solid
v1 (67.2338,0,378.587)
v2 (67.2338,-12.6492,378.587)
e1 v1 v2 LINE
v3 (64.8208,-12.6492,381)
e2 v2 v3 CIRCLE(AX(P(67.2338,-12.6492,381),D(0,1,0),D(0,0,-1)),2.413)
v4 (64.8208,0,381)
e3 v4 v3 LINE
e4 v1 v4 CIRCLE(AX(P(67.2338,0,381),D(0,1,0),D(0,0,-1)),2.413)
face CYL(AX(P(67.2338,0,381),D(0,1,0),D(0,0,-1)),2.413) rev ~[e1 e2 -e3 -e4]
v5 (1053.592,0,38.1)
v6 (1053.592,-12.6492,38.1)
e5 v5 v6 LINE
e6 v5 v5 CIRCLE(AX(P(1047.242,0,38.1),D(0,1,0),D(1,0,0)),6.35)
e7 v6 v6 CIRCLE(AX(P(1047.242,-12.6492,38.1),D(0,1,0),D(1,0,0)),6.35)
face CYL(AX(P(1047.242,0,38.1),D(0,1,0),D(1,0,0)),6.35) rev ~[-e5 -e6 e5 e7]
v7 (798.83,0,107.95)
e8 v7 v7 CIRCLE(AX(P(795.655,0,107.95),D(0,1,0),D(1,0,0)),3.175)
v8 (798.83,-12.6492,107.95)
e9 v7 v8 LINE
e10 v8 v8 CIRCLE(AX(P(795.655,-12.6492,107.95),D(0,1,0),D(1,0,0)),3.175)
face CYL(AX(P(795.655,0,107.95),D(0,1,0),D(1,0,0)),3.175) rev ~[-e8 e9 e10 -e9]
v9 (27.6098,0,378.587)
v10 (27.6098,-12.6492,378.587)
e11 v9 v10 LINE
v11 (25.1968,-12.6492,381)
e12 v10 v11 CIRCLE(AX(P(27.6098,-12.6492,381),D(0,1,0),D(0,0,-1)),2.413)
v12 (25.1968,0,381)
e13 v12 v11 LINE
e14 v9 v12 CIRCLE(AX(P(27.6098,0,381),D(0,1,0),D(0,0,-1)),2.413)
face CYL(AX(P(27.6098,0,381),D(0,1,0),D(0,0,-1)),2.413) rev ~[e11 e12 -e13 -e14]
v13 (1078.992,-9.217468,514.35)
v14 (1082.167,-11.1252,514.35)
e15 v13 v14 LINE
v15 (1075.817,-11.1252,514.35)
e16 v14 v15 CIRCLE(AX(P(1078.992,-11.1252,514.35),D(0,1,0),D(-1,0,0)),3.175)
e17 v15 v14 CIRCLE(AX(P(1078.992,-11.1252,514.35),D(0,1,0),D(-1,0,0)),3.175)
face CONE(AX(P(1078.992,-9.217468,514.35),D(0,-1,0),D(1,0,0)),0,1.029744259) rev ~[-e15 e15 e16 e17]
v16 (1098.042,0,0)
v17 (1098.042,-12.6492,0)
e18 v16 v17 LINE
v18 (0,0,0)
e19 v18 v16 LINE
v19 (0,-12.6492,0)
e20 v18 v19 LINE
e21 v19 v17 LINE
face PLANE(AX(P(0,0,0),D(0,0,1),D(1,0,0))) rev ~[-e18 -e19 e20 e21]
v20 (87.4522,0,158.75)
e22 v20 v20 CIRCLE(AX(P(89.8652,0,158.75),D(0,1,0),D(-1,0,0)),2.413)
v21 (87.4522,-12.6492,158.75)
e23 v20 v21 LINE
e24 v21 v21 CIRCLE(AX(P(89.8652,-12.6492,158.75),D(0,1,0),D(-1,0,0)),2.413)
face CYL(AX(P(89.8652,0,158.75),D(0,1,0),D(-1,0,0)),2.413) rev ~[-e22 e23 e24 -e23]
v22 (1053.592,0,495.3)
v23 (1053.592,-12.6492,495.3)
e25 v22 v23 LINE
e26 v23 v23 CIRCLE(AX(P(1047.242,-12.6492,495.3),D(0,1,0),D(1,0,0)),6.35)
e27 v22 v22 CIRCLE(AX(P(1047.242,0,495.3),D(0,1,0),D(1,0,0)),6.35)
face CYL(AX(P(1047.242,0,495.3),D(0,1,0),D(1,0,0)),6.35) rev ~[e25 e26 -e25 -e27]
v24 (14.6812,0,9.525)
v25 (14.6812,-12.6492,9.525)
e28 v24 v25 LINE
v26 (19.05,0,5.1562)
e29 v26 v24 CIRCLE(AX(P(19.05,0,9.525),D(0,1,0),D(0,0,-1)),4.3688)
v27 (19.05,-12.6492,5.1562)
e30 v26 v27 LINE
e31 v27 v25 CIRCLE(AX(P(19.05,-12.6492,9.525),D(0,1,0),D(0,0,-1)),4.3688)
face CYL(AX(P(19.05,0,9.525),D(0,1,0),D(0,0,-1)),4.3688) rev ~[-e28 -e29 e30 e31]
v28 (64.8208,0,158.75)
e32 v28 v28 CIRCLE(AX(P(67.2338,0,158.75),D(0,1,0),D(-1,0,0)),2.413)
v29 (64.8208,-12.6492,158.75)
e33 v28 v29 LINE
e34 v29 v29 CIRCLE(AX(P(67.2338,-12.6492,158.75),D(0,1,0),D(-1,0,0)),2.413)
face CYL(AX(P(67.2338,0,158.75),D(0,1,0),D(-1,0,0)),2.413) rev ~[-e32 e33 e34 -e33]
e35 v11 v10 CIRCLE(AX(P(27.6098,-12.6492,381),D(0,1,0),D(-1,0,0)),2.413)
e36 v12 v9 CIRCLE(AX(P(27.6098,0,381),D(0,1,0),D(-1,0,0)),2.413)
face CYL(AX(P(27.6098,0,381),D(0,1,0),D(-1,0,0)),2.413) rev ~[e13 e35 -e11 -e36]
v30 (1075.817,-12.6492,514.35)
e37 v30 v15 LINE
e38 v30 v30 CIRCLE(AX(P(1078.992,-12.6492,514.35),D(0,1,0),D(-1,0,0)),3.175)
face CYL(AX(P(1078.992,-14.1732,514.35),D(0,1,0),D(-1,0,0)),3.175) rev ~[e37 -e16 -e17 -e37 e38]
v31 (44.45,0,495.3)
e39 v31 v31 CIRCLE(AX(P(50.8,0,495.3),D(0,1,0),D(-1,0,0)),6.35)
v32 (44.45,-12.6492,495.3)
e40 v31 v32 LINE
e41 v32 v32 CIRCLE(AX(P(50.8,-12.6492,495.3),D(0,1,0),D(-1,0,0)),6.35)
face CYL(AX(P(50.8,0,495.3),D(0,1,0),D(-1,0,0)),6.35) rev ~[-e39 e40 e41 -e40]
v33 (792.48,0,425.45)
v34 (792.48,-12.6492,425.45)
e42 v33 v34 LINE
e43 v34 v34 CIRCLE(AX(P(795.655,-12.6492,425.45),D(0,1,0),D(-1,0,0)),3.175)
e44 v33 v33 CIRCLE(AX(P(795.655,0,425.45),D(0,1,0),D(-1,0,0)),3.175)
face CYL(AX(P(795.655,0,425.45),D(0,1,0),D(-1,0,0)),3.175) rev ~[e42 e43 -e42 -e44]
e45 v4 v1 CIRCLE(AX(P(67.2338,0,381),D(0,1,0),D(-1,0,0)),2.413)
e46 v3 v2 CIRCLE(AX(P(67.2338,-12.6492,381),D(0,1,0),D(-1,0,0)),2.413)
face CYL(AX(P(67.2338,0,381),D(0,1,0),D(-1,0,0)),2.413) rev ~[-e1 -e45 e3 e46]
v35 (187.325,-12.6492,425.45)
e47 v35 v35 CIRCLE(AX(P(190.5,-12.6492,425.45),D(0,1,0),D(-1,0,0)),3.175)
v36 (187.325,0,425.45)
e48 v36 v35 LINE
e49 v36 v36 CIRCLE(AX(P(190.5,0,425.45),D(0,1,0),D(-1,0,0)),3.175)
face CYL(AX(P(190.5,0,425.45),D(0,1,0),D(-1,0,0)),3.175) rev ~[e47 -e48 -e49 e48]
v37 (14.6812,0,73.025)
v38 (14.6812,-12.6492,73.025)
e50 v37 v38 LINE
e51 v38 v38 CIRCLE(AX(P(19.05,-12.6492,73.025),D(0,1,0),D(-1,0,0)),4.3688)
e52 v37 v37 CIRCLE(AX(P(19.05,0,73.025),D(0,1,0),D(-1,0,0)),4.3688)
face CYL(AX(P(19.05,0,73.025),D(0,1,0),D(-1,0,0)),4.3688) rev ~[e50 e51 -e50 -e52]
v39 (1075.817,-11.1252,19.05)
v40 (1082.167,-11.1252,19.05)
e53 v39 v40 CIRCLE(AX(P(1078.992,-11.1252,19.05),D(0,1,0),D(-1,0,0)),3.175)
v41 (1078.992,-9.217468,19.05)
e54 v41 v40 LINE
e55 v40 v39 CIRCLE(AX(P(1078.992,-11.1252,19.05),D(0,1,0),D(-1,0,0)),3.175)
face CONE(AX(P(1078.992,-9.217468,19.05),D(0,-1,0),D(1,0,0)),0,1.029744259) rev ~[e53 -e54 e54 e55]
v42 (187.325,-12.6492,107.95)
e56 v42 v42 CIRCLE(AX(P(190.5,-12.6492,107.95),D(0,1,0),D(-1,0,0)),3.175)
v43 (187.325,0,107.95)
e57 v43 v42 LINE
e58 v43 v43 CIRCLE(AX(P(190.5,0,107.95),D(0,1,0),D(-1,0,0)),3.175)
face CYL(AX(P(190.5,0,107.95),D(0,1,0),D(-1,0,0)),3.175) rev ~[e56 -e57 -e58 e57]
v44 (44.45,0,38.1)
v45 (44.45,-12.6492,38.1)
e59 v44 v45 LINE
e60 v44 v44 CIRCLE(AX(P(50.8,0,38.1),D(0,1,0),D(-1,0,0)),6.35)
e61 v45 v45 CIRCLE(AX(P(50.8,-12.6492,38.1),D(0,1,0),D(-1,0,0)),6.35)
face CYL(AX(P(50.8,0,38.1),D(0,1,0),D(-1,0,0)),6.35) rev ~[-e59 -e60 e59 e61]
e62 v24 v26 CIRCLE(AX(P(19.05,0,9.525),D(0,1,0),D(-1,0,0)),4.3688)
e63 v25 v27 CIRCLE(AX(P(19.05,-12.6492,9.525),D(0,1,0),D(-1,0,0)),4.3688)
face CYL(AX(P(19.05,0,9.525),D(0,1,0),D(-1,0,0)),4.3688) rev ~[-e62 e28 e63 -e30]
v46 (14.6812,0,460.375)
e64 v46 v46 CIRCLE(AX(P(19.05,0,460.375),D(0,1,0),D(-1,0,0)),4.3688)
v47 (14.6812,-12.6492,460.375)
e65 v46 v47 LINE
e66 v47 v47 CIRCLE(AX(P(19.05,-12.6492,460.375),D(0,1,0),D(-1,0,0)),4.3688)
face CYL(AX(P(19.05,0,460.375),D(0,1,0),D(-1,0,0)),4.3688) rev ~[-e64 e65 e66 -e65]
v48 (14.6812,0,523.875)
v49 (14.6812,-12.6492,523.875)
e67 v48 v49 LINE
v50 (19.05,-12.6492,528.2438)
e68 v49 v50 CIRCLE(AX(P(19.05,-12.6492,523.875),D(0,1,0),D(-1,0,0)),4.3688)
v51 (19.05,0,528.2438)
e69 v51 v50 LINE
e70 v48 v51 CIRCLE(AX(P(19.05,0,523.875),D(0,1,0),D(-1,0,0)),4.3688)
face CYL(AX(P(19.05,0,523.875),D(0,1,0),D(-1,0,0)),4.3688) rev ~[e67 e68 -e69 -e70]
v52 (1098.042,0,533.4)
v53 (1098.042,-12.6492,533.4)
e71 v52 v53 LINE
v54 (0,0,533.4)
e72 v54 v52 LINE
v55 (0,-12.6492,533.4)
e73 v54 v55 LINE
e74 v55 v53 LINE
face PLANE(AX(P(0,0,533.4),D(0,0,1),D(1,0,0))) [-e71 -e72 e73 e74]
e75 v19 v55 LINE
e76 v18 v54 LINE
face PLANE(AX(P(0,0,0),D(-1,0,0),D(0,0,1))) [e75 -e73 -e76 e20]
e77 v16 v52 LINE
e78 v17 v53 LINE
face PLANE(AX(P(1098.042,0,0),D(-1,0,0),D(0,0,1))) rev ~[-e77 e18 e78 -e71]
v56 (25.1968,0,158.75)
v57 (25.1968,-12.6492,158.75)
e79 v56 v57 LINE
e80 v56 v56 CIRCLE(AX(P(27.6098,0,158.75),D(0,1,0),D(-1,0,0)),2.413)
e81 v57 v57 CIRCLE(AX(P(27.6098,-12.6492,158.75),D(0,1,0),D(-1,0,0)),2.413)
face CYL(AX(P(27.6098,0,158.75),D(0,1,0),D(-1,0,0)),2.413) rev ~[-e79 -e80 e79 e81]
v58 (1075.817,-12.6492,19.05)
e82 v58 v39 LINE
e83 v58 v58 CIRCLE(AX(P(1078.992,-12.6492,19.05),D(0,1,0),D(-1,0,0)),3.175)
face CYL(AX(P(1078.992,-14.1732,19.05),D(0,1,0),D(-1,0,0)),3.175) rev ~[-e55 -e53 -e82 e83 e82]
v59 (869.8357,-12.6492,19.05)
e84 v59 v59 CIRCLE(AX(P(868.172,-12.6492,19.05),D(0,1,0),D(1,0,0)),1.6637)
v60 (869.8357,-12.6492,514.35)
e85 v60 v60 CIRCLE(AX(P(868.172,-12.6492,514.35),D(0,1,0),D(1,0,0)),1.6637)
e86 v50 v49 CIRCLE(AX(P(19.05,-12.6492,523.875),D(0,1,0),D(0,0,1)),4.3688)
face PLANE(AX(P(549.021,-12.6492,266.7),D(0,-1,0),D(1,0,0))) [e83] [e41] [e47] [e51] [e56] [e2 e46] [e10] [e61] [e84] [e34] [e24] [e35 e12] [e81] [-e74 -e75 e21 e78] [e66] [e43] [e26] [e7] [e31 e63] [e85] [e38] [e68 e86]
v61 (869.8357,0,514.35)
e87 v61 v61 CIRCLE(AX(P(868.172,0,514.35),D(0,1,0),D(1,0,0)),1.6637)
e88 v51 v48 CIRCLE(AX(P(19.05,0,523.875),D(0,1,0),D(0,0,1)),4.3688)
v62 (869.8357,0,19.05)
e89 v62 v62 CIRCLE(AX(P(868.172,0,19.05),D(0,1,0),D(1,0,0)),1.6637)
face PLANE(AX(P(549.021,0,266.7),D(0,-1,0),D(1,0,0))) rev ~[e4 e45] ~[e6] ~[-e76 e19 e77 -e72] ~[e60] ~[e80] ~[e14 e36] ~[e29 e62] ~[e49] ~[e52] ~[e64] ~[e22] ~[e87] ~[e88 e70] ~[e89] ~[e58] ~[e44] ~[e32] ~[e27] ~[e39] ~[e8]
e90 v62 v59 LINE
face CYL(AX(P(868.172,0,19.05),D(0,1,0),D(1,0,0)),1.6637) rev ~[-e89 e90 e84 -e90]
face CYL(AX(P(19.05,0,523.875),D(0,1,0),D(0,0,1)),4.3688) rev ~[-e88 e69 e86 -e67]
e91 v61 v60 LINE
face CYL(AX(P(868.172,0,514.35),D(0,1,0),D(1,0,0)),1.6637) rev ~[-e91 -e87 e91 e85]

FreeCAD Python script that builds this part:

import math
import FreeCAD as App
import Part
import Sketcher

V = App.Vector
Q = App.Units.Quantity

doc = App.newDocument("Part")
body = doc.addObject("PartDesign::Body", "Body")

sketch1 = doc.addObject("Sketcher::SketchObject", "Sketch")
body.addObject(sketch1)
sketch1.AttachmentSupport = (doc.XZ_Plane, [""])
sketch1.MapMode = "FlatFace"
sketch1.addGeometry([
    Part.LineSegment(V(0, 533, 0), V(0, 0, 0)),
    Part.LineSegment(V(0, 0, 0), V(1098, 0, 0)),
    Part.LineSegment(V(1098, 0, 0), V(1098, 533, 0)),
    Part.LineSegment(V(1098, 533, 0), V(0, 533, 0)),
], False)
sketch1.addConstraint([
    Sketcher.Constraint("Coincident", 0, 2, 1, 1),
    Sketcher.Constraint("Coincident", 1, 2, 2, 1),
    Sketcher.Constraint("Coincident", 2, 2, 3, 1),
    Sketcher.Constraint("Coincident", 3, 2, 0, 1),
    Sketcher.Constraint("Vertical", 0),
    Sketcher.Constraint("Horizontal", 1),
    Sketcher.Constraint("Vertical", 2),
    Sketcher.Constraint("Horizontal", 3),
    Sketcher.Constraint("Coincident", 0, 2, -1, 1),
    Sketcher.Constraint("DistanceY", 0, 2, 0, 1, Q("21 in")),
    Sketcher.Constraint("DistanceX", 1, 1, 1, 2, Q("43.23 in")),
])
pad1 = doc.addObject("PartDesign::Pad", "Pad")
body.addObject(pad1)
pad1.Profile = sketch1
pad1.Length = Q("0.498 in")

sketch2 = doc.addObject("Sketcher::SketchObject", "Sketch001")
body.addObject(sketch2)
sketch2.AttachmentSupport = (doc.XZ_Plane, [""])
sketch2.MapMode = "FlatFace"
sketch2.AttachmentOffset = App.Placement(V(0, 0, 0.498 * 25.4), App.Rotation())
sketch2.addGeometry([
    Part.Circle(V(1079, 514.4, 0), V(0, 0, 1), 3.2),
    Part.Circle(V(1079, 19.1, 0), V(0, 0, 1), 3.2),
], False)
sketch2.addConstraint([
    Sketcher.Constraint("Equal", 0, 1),
    Sketcher.Constraint("Vertical", 0, 3, 1, 3),
    Sketcher.Constraint("Diameter", 0, Q("0.25 in")),
    Sketcher.Constraint("DistanceY", 1, 3, 0, 3, Q("19.5 in")),
    Sketcher.Constraint("DistanceX", -1, 1, 0, 3, Q("42.48 in")),
    Sketcher.Constraint("DistanceY", -1, 1, 0, 3, Q("20.25 in")),
])
doc.recompute()
hole = doc.addObject("PartDesign::Hole", "Hole")
body.addObject(hole)
hole.Profile = sketch2
hole.ThreadType = "None"
hole.Diameter = Q("0.25 in")
hole.DepthType = "Dimension"
hole.Depth = Q("0.06 in")
hole.DrillPoint = "Angled"
hole.DrillPointAngle = 118

sketch3 = doc.addObject("Sketcher::SketchObject", "Sketch002")
body.addObject(sketch3)
sketch3.AttachmentSupport = (doc.XZ_Plane, [""])
sketch3.MapMode = "FlatFace"
sketch3.addGeometry([
    Part.Circle(V(868.2, 19.1, 0), V(0, 0, 1), 1.7),
    Part.Circle(V(795.7, 108, 0), V(0, 0, 1), 3.2),
    Part.Circle(V(1047.2, 38.1, 0), V(0, 0, 1), 6.3),
    Part.Circle(V(868.2, 514.4, 0), V(0, 0, 1), 1.7),
    Part.Circle(V(1047.2, 495.3, 0), V(0, 0, 1), 6.3),
    Part.Circle(V(795.7, 425.4, 0), V(0, 0, 1), 3.2),
    Part.Circle(V(50.8, 38.1, 0), V(0, 0, 1), 6.3),
    Part.Circle(V(190.5, 108, 0), V(0, 0, 1), 3.2),
    Part.Circle(V(89.9, 158.8, 0), V(0, 0, 1), 2.4),
    Part.Circle(V(67.2, 158.8, 0), V(0, 0, 1), 2.4),
    Part.Circle(V(27.6, 158.8, 0), V(0, 0, 1), 2.4),
    Part.ArcOfCircle(Part.Circle(V(19.1, 9.5, 0), V(0, 0, 1), 4.4), math.radians(-90), math.radians(180)),
    Part.ArcOfCircle(Part.Circle(V(19.1, 9.5, 0), V(0, 0, 1), 4.4), math.radians(180), math.radians(270)),
    Part.Circle(V(50.8, 495.3, 0), V(0, 0, 1), 6.3),
    Part.ArcOfCircle(Part.Circle(V(19.1, 523.9, 0), V(0, 0, 1), 4.4), math.radians(90), math.radians(180)),
    Part.ArcOfCircle(Part.Circle(V(19.1, 523.9, 0), V(0, 0, 1), 4.4), math.radians(180), math.radians(450)),
    Part.Circle(V(190.5, 425.4, 0), V(0, 0, 1), 3.2),
    Part.Circle(V(19.1, 460.4, 0), V(0, 0, 1), 4.4),
    Part.ArcOfCircle(Part.Circle(V(67.2, 381, 0), V(0, 0, 1), 2.4), math.radians(180), math.radians(270)),
    Part.ArcOfCircle(Part.Circle(V(67.2, 381, 0), V(0, 0, 1), 2.4), math.radians(-90), math.radians(180)),
    Part.ArcOfCircle(Part.Circle(V(27.6, 381, 0), V(0, 0, 1), 2.4), math.radians(180), math.radians(270)),
    Part.ArcOfCircle(Part.Circle(V(27.6, 381, 0), V(0, 0, 1), 2.4), math.radians(-90), math.radians(180)),
    Part.Circle(V(19.1, 73, 0), V(0, 0, 1), 4.4),
], False)
sketch3.addConstraint([
    Sketcher.Constraint("Tangent", 11, 1, 12, 2),
    Sketcher.Constraint("Coincident", 12, 1, 11, 2),
    Sketcher.Constraint("Tangent", 14, 1, 15, 2),
    Sketcher.Constraint("Coincident", 15, 1, 14, 2),
    Sketcher.Constraint("Tangent", 18, 1, 19, 2),
    Sketcher.Constraint("Coincident", 19, 1, 18, 2),
    Sketcher.Constraint("Tangent", 20, 1, 21, 2),
    Sketcher.Constraint("Coincident", 21, 1, 20, 2),
    Sketcher.Constraint("Equal", 0, 3),
    Sketcher.Constraint("Equal", 2, 4),
    Sketcher.Constraint("Equal", 1, 5),
    Sketcher.Constraint("Equal", 4, 6),
    Sketcher.Constraint("Equal", 5, 7),
    Sketcher.Constraint("Equal", 8, 9),
    Sketcher.Constraint("Equal", 9, 10),
    Sketcher.Constraint("Equal", 6, 13),
    Sketcher.Constraint("Equal", 12, 14),
    Sketcher.Constraint("Equal", 7, 16),
    Sketcher.Constraint("Equal", 15, 17),
    Sketcher.Constraint("Equal", 10, 18),
    Sketcher.Constraint("Equal", 19, 20),
    Sketcher.Constraint("Equal", 17, 22),
    Sketcher.Constraint("Horizontal", 2, 3, 6, 3),
    Sketcher.Constraint("Horizontal", 1, 3, 7, 3),
    Sketcher.Constraint("Horizontal", 8, 3, 9, 3),
    Sketcher.Constraint("Horizontal", 9, 3, 10, 3),
    Sketcher.Constraint("Horizontal", 4, 3, 13, 3),
    Sketcher.Constraint("Horizontal", 5, 3, 16, 3),
    Sketcher.Constraint("Horizontal", 19, 3, 20, 3),
    Sketcher.Constraint("Horizontal", 11, 3, 12, 1),
    Sketcher.Constraint("Horizontal", 14, 3, 15, 1),
    Sketcher.Constraint("Horizontal", 21, 3, 18, 1),
    Sketcher.Constraint("Horizontal", 18, 1, 20, 1),
    Sketcher.Constraint("Vertical", 0, 3, 3, 3),
    Sketcher.Constraint("Vertical", 2, 3, 4, 3),
    Sketcher.Constraint("Vertical", 1, 3, 5, 3),
    Sketcher.Constraint("Vertical", 6, 3, 13, 3),
    Sketcher.Constraint("Vertical", 12, 3, 14, 3),
    Sketcher.Constraint("Vertical", 7, 3, 16, 3),
    Sketcher.Constraint("Vertical", 15, 3, 17, 3),
    Sketcher.Constraint("Vertical", 9, 3, 18, 3),
    Sketcher.Constraint("Vertical", 10, 3, 20, 3),
    Sketcher.Constraint("Vertical", 17, 3, 22, 3),
    Sketcher.Constraint("Vertical", 22, 3, 11, 1),
    Sketcher.Constraint("Vertical", 11, 1, 14, 1),
    Sketcher.Constraint("Vertical", 18, 3, 19, 1),
    Sketcher.Constraint("Vertical", 20, 3, 21, 1),
    Sketcher.Constraint("Diameter", 2, Q("0.5 in")),
    Sketcher.Constraint("Diameter", 1, Q("0.25 in")),
    Sketcher.Constraint("Diameter", 8, Q("0.19 in")),
    Sketcher.Constraint("Diameter", 0, Q("0.131 in")),
    Sketcher.Constraint("Diameter", 17, Q("0.344 in")),
    Sketcher.Constraint("DistanceX", -1, 1, 6, 3, Q("2 in")),
    Sketcher.Constraint("DistanceY", -1, 1, 18, 3, Q("15 in")),
    Sketcher.Constraint("DistanceY", 1, 3, 3, 3, Q("16 in")),
    Sketcher.Constraint("DistanceY", 2, 3, 4, 3, Q("18 in")),
    Sketcher.Constraint("DistanceY", 0, 3, 5, 3, Q("16 in")),
    Sketcher.Constraint("DistanceY", 7, 3, 8, 3, Q("2 in")),
    Sketcher.Constraint("DistanceY", -1, 1, 2, 3, Q("1.5 in")),
    Sketcher.Constraint("DistanceX", -1, 1, 7, 3, Q("7.5 in")),
    Sketcher.Constraint("DistanceY", 0, 3, 1, 3, Q("3.5 in")),
    Sketcher.Constraint("DistanceY", 17, 3, 14, 3, Q("2.5 in")),
    Sketcher.Constraint("DistanceY", 11, 3, 22, 3, Q("2.5 in")),
    Sketcher.Constraint("DistanceX", -1, 1, 0, 3, Q("34.18 in")),
    Sketcher.Constraint("DistanceY", -1, 1, 0, 3, Q("0.75 in")),
    Sketcher.Constraint("DistanceX", -1, 1, 2, 3, Q("41.23 in")),
    Sketcher.Constraint("DistanceX", -1, 1, 11, 3, Q("0.75 in")),
    Sketcher.Constraint("DistanceX", 10, 3, 9, 3, Q("1.56 in")),
    Sketcher.Constraint("DistanceX", -1, 1, 1, 3, Q("31.325 in")),
    Sketcher.Constraint("DistanceX", -1, 1, 8, 3, Q("3.538 in")),
    Sketcher.Constraint("DistanceX", -1, 1, 9, 3, Q("2.647 in")),
    Sketcher.Constraint("DistanceY", -1, 1, 11, 3, Q("0.375 in")),
    Sketcher.Constraint("DistanceY", -1, 1, 14, 3, Q("20.625 in")),
])
pocket1 = doc.addObject("PartDesign::Pocket", "Pocket")
body.addObject(pocket1)
pocket1.Profile = sketch3
pocket1.Length = Q("1 in")
pocket1.Reversed = True

doc.recompute()
